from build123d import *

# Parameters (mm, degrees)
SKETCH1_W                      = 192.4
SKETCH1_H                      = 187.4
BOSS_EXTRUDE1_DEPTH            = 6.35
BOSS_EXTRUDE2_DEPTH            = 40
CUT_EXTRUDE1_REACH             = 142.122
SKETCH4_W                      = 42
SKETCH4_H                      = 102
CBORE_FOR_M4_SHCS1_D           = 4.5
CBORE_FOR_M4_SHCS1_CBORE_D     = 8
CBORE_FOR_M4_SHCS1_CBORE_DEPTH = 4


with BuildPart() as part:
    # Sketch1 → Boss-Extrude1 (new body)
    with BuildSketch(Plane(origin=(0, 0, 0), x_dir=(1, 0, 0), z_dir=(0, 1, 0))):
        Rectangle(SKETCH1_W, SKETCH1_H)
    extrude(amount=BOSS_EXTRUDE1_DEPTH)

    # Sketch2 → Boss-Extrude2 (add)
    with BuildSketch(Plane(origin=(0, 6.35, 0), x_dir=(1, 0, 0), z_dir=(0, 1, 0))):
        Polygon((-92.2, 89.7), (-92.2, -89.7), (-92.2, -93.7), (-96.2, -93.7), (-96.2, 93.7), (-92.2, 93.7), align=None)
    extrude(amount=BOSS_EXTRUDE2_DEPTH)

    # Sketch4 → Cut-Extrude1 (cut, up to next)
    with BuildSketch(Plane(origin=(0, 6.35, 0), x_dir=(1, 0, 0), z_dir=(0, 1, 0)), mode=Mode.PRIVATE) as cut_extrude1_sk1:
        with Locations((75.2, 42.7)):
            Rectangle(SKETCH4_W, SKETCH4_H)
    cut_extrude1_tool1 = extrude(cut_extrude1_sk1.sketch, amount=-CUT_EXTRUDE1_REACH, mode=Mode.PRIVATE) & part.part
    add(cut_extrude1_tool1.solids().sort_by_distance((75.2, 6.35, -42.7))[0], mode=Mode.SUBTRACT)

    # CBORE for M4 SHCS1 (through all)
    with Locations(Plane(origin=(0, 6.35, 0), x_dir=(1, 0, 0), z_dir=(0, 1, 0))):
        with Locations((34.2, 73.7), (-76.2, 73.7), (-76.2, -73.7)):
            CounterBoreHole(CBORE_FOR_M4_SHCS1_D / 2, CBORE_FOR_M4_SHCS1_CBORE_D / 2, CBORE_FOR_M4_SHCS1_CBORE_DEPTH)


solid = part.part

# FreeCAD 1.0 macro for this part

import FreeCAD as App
import Part
import Sketcher
from FreeCAD import Vector
Q = App.Units.Quantity

doc = App.newDocument("Part")
body = doc.addObject("PartDesign::Body", "Body")

# Sketch on XZ plane
sketch1 = body.newObject("Sketcher::SketchObject", "Sketch")
sketch1.AttachmentSupport = (doc.getObject("XZ_Plane"), [""])
sketch1.MapMode = "FlatFace"
sketch1.addGeometry([
    Part.LineSegment(Vector(-96, -94, 0), Vector(-96, 94, 0)),
    Part.LineSegment(Vector(-96, 94, 0), Vector(96, 94, 0)),
    Part.LineSegment(Vector(96, 94, 0), Vector(96, -94, 0)),
    Part.LineSegment(Vector(96, -94, 0), Vector(-96, -94, 0)),
], False)
sketch1.addConstraint([
    Sketcher.Constraint("Coincident", 0, 2, 1, 1),
    Sketcher.Constraint("Coincident", 1, 2, 2, 1),
    Sketcher.Constraint("Coincident", 2, 2, 3, 1),
    Sketcher.Constraint("Coincident", 3, 2, 0, 1),
    Sketcher.Constraint("Vertical", 0),
    Sketcher.Constraint("Horizontal", 1),
    Sketcher.Constraint("Vertical", 2),
    Sketcher.Constraint("Horizontal", 3),
    Sketcher.Constraint("Symmetric", 0, 2, 2, 2, -1, 1),
    Sketcher.Constraint("DistanceX", 1, 1, 1, 2, Q("192.4 mm")),
    Sketcher.Constraint("DistanceY", 0, 1, 0, 2, Q("187.4 mm")),
])
pad1 = body.newObject("PartDesign::Pad", "Pad")
pad1.Profile = sketch1
pad1.Length = 6.35
pad1.Reversed = True

# Sketch on XZ plane
sketch2 = body.newObject("Sketcher::SketchObject", "Sketch001")
sketch2.AttachmentSupport = (doc.getObject("XZ_Plane"), [""])
sketch2.MapMode = "FlatFace"
sketch2.AttachmentOffset = App.Placement(Vector(0, 0, -6.35), App.Rotation())
sketch2.addGeometry([
    Part.LineSegment(Vector(-92.2, 93.7, 0), Vector(-92.2, -93.7, 0)),
    Part.LineSegment(Vector(-92.2, -93.7, 0), Vector(-96.2, -93.7, 0)),
    Part.LineSegment(Vector(-96.2, -93.7, 0), Vector(-96.2, 93.7, 0)),
    Part.LineSegment(Vector(-96.2, 93.7, 0), Vector(-92.2, 93.7, 0)),
], False)
sketch2.addConstraint([
    Sketcher.Constraint("Coincident", 0, 2, 1, 1),
    Sketcher.Constraint("Coincident", 1, 2, 2, 1),
    Sketcher.Constraint("Coincident", 2, 2, 3, 1),
    Sketcher.Constraint("Coincident", 3, 2, 0, 1),
    Sketcher.Constraint("Vertical", 0),
    Sketcher.Constraint("Horizontal", 1),
    Sketcher.Constraint("Vertical", 2),
    Sketcher.Constraint("Horizontal", 3),
    Sketcher.Constraint("DistanceX", 1, 2, 1, 1, Q("4 mm")),
    Sketcher.Constraint("DistanceY", 0, 2, 0, 1, Q("187.4 mm")),
    Sketcher.Constraint("DistanceX", 0, 2, -1, 1, Q("92.2 mm")),
    Sketcher.Constraint("DistanceY", 0, 2, -1, 1, Q("93.7 mm")),
])
pad2 = body.newObject("PartDesign::Pad", "Pad001")
pad2.Profile = sketch2
pad2.Length = 40
pad2.Reversed = True

# Sketch on XZ plane
sketch3 = body.newObject("Sketcher::SketchObject", "Sketch002")
sketch3.AttachmentSupport = (doc.getObject("XZ_Plane"), [""])
sketch3.MapMode = "FlatFace"
sketch3.AttachmentOffset = App.Placement(Vector(0, 0, -6.35), App.Rotation())
sketch3.addGeometry([
    Part.LineSegment(Vector(54, -94, 0), Vector(54, 8, 0)),
    Part.LineSegment(Vector(54, 8, 0), Vector(96, 8, 0)),
    Part.LineSegment(Vector(96, 8, 0), Vector(96, -94, 0)),
    Part.LineSegment(Vector(96, -94, 0), Vector(54, -94, 0)),
], False)
sketch3.addConstraint([
    Sketcher.Constraint("Coincident", 0, 2, 1, 1),
    Sketcher.Constraint("Coincident", 1, 2, 2, 1),
    Sketcher.Constraint("Coincident", 2, 2, 3, 1),
    Sketcher.Constraint("Coincident", 3, 2, 0, 1),
    Sketcher.Constraint("Vertical", 0),
    Sketcher.Constraint("Horizontal", 1),
    Sketcher.Constraint("Vertical", 2),
    Sketcher.Constraint("Horizontal", 3),
    Sketcher.Constraint("DistanceX", 1, 1, 1, 2, Q("42 mm")),
    Sketcher.Constraint("DistanceY", 0, 1, 0, 2, Q("102 mm")),
    Sketcher.Constraint("DistanceX", -1, 1, 0, 2, Q("54.2 mm")),
    Sketcher.Constraint("DistanceY", -1, 1, 0, 2, Q("8.3 mm")),
])
pocket1 = body.newObject("PartDesign::Pocket", "Pocket")
pocket1.Profile = sketch3
pocket1.Type = "UpToFirst"
pocket1.Reversed = True

# Sketch on XZ plane
sketch4 = body.newObject("Sketcher::SketchObject", "Sketch003")
sketch4.AttachmentSupport = (doc.getObject("XZ_Plane"), [""])
sketch4.MapMode = "FlatFace"
sketch4.AttachmentOffset = App.Placement(Vector(0, 0, -6.35), App.Rotation())
sketch4.addGeometry([
    Part.Circle(Vector(34.2, -73.7, 0), Vector(0, 0, 1), 2.2),
    Part.Circle(Vector(-76.2, -73.7, 0), Vector(0, 0, 1), 2.2),
    Part.Circle(Vector(-76.2, 73.7, 0), Vector(0, 0, 1), 2.2),
], False)
sketch4.addConstraint([
    Sketcher.Constraint("Equal", 0, 1),
    Sketcher.Constraint("Equal", 1, 2),
    Sketcher.Constraint("Symmetric", 1, 3, 2, 3, -1),
    Sketcher.Constraint("Horizontal", 0, 3, 1, 3),
    Sketcher.Constraint("Diameter", 0, Q("4.5 mm")),
    Sketcher.Constraint("DistanceX", -1, 1, 0, 3, Q("34.2 mm")),
    Sketcher.Constraint("DistanceY", 0, 3, -1, 1, Q("73.7 mm")),
    Sketcher.Constraint("DistanceX", 1, 3, -1, 1, Q("76.2 mm")),
])
doc.recompute()
hole = body.newObject("PartDesign::Hole", "Hole")
hole.Profile = sketch4
hole.ThreadType = "None"
hole.Diameter = 4.5
hole.DepthType = "ThroughAll"
hole.HoleCutType = "Counterbore"
hole.HoleCutDiameter = 8
hole.HoleCutDepth = 4
hole.Reversed = True

doc.recompute()
